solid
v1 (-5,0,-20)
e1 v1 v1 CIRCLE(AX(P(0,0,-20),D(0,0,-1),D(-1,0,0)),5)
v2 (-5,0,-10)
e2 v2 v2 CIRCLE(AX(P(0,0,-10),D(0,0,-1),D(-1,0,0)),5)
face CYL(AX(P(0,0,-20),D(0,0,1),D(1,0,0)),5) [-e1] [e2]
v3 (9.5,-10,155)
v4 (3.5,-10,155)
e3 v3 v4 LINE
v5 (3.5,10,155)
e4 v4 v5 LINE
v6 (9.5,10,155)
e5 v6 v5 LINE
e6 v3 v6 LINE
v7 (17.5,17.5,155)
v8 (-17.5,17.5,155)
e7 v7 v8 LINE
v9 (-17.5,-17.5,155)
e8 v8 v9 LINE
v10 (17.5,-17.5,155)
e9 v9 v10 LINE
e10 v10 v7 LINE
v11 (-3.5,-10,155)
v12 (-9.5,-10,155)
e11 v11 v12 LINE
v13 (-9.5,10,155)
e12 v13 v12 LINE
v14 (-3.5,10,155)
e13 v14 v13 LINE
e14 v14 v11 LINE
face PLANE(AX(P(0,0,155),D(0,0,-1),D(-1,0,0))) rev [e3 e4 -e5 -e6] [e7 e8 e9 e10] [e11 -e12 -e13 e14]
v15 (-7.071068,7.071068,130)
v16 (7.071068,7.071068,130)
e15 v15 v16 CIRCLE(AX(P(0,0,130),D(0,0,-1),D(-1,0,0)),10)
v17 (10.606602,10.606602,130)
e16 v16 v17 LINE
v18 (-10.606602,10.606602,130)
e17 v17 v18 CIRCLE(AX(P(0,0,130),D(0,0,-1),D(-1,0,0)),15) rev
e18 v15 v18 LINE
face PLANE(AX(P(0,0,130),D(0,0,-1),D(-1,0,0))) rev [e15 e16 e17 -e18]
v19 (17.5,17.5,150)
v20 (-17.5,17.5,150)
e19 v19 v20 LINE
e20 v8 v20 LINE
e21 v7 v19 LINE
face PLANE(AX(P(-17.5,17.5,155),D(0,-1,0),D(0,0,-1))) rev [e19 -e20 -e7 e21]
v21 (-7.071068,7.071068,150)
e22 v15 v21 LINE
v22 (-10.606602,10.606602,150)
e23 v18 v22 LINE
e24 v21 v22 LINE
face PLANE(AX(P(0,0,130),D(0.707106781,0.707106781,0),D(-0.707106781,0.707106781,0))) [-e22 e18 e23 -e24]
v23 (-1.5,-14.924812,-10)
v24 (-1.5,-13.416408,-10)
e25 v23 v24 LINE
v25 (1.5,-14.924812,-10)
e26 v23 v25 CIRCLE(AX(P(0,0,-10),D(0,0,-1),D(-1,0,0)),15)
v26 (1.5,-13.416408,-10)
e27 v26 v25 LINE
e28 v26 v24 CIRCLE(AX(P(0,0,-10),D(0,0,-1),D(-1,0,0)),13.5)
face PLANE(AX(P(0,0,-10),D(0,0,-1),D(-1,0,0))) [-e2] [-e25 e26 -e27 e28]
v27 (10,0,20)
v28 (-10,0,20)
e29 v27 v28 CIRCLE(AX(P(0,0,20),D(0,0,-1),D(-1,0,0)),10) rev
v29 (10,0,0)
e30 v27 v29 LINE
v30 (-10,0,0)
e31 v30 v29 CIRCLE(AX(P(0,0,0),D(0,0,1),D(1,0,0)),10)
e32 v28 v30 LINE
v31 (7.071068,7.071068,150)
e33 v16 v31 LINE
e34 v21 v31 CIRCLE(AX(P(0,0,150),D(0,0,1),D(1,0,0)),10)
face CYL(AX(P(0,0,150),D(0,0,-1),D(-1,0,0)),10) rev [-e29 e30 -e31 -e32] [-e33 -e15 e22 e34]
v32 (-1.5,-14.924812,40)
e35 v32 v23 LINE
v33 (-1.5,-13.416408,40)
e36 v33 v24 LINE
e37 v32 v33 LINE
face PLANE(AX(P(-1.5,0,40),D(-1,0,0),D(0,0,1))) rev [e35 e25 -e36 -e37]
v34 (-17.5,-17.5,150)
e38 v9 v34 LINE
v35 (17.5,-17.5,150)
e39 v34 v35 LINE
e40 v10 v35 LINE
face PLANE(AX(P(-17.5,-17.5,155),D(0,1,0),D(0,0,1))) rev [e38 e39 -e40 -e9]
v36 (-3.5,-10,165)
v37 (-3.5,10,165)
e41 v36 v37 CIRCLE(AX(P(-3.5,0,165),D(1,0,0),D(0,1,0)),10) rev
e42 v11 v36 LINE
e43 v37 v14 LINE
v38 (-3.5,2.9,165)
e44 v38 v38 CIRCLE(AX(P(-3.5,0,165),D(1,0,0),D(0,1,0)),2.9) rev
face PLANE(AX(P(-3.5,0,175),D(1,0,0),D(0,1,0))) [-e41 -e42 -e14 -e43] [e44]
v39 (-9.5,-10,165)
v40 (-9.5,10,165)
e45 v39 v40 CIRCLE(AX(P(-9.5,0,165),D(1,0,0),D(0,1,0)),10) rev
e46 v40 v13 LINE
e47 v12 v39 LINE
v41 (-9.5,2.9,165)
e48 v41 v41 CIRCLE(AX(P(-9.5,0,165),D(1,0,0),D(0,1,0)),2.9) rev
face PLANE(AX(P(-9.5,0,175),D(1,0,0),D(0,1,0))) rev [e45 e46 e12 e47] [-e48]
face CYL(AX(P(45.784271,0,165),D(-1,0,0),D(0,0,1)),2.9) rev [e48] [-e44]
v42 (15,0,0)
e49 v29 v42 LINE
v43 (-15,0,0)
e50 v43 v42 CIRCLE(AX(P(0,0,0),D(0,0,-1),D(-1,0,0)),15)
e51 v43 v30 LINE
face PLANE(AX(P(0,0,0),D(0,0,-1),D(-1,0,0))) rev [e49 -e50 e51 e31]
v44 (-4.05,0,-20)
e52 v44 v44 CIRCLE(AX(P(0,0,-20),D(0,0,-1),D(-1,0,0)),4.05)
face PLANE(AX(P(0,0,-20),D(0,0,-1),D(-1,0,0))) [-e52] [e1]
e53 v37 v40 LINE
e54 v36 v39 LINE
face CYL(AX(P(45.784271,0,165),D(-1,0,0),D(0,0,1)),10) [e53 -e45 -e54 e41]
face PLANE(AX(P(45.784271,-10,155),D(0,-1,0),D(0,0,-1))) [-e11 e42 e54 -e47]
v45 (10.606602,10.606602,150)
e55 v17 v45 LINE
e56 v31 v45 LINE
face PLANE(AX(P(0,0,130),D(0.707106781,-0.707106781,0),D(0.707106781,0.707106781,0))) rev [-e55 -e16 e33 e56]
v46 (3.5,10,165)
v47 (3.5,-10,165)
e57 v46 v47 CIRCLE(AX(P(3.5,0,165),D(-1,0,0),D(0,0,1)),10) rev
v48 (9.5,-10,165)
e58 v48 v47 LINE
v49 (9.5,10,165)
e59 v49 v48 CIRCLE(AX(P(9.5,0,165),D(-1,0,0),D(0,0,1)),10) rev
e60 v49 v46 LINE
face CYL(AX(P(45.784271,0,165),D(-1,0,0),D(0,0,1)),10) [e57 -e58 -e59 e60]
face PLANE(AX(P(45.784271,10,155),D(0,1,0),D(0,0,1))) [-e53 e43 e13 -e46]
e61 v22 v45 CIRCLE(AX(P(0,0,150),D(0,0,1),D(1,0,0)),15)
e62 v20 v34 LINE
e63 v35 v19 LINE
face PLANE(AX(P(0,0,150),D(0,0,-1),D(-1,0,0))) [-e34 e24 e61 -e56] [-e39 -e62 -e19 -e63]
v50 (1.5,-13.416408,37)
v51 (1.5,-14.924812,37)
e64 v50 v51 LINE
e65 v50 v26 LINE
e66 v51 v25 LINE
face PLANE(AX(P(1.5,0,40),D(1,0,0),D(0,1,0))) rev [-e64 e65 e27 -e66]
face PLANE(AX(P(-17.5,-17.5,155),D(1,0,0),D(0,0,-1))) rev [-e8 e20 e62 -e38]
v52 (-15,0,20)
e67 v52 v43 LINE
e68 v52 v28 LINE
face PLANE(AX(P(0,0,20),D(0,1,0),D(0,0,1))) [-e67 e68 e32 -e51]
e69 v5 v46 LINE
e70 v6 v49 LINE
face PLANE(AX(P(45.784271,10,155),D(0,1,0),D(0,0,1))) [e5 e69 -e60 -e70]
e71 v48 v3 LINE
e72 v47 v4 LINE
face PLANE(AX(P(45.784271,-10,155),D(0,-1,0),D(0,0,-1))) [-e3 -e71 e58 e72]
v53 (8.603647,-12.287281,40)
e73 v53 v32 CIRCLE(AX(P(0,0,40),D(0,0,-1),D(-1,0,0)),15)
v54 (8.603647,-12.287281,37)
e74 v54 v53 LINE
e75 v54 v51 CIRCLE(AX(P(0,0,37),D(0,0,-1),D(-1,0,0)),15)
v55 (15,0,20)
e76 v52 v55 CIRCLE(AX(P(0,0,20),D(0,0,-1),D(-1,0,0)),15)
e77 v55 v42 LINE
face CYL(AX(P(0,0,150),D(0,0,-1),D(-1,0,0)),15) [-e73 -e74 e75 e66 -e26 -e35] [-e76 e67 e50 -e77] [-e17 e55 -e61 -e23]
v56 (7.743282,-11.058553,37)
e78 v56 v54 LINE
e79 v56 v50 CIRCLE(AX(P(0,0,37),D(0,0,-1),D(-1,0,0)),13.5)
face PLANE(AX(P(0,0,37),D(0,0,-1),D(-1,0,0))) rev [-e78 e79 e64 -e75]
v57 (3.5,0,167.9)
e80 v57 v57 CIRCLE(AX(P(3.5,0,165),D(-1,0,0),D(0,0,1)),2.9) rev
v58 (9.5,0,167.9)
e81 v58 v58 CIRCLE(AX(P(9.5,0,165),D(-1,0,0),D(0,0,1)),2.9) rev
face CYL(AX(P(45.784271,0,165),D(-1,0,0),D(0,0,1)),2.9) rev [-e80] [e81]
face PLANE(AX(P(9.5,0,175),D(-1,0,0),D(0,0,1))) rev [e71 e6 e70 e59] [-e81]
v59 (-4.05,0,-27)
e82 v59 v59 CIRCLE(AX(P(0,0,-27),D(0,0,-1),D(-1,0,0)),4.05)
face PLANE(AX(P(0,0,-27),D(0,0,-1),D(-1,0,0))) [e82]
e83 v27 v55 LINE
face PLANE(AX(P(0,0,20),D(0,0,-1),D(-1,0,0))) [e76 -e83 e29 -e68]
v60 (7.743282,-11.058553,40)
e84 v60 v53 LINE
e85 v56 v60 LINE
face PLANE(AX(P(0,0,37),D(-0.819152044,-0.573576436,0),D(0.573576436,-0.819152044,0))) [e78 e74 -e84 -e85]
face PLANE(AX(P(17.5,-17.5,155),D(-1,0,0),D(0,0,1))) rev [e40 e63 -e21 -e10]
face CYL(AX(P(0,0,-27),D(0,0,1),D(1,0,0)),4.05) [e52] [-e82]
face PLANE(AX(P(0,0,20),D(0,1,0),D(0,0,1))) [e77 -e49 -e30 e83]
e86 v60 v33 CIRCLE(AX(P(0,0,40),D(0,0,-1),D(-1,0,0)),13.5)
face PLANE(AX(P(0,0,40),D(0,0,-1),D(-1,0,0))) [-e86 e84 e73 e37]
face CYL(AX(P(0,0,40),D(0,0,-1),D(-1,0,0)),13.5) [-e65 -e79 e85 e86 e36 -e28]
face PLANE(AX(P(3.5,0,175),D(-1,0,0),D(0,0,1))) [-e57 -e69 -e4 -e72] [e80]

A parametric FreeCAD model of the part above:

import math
import FreeCAD as App
import Part
import Sketcher

V = App.Vector
Q = App.Units.Quantity


def add_polygon(sketch, points):
    """Adds a closed chain of lines whose ends are joined by coincident constraints."""
    first, n = sketch.GeometryCount, len(points)
    for a, b in zip(points, points[1:] + points[:1]):
        sketch.addGeometry(Part.LineSegment(App.Vector(*a, 0), App.Vector(*b, 0)), False)
    for i in range(n):
        sketch.addConstraint(Sketcher.Constraint("Coincident", first + i, 2, first + (i + 1) % n, 1))

doc = App.newDocument("Part")
body = doc.addObject("PartDesign::Body", "Body")

# Sketch on XY plane
sketch1 = body.newObject("Sketcher::SketchObject", "Sketch")
sketch1.AttachmentSupport = (doc.getObject("XY_Plane"), [""])
sketch1.MapMode = "FlatFace"
sketch1.addGeometry([
    Part.Circle(V(0, 0, 0), V(0, 0, 1), 15),
    Part.Circle(V(0, 0, 0), V(0, 0, 1), 10),
], False)
sketch1.addConstraint([
    Sketcher.Constraint("Coincident", 0, 3, -1, 1),
    Sketcher.Constraint("Coincident", 1, 3, -1, 1),
    Sketcher.Constraint("Diameter", 0, 30.0),
    Sketcher.Constraint("Diameter", 1, 20.0),
])
pad1 = body.newObject("PartDesign::Pad", "Pad")
pad1.Profile = sketch1
pad1.Length = 150

# Sketch on XY plane
sketch2 = body.newObject("Sketcher::SketchObject", "Sketch001")
sketch2.AttachmentSupport = (doc.getObject("XY_Plane"), [""])
sketch2.MapMode = "FlatFace"
sketch2.AttachmentOffset = App.Placement(V(0, 0, 150), App.Rotation())
add_polygon(sketch2, [(-18, 18), (-18, -18), (18, -18), (18, 18)])  # lines 0-3
sketch2.addConstraint([
    Sketcher.Constraint("Vertical", 0),
    Sketcher.Constraint("Horizontal", 1),
    Sketcher.Constraint("Vertical", 2),
    Sketcher.Constraint("Horizontal", 3),
    Sketcher.Constraint("Symmetric", 0, 2, 2, 2, -1, 1),
    Sketcher.Constraint("Equal", 3, 0),
    Sketcher.Constraint("DistanceX", 1, 1, 1, 2, 35.0),
])
pad2 = body.newObject("PartDesign::Pad", "Pad001")
pad2.Profile = sketch2
pad2.Length = 5

# Sketch on XY plane
sketch3 = body.newObject("Sketcher::SketchObject", "Sketch002")
sketch3.AttachmentSupport = (doc.getObject("XY_Plane"), [""])
sketch3.MapMode = "FlatFace"
sketch3.addGeometry([
    Part.LineSegment(V(-10, 0, 0), V(-15, 0, 0)),
    Part.ArcOfCircle(Part.Circle(V(0, 0, 0), V(0, 0, 1), 15), math.radians(0), math.radians(180)),
    Part.LineSegment(V(15, 0, 0), V(10, 0, 0)),
    Part.ArcOfCircle(Part.Circle(V(0, 0, 0), V(0, 0, 1), 10), math.radians(0), math.radians(180)),
], False)
sketch3.addConstraint([
    Sketcher.Constraint("Coincident", 0, 2, 1, 2),
    Sketcher.Constraint("Coincident", 1, 1, 2, 1),
    Sketcher.Constraint("Coincident", 2, 2, 3, 1),
    Sketcher.Constraint("Coincident", 3, 2, 0, 1),
    Sketcher.Constraint("Horizontal", 0),
    Sketcher.Constraint("Horizontal", 2),
    Sketcher.Constraint("Coincident", 1, 3, -1, 1),
    Sketcher.Constraint("Coincident", 3, 3, -1, 1),
    Sketcher.Constraint("PointOnObject", 0, 2, -1),
    Sketcher.Constraint("PointOnObject", 1, 1, -1),
    Sketcher.Constraint("Radius", 1, 15.0),
    Sketcher.Constraint("Radius", 3, 10.0),
])
pocket1 = body.newObject("PartDesign::Pocket", "Pocket")
pocket1.Profile = sketch3
pocket1.Length = 20
pocket1.Reversed = True

# Sketch on XY plane
sketch4 = body.newObject("Sketcher::SketchObject", "Sketch003")
sketch4.AttachmentSupport = (doc.getObject("XY_Plane"), [""])
sketch4.MapMode = "FlatFace"
sketch4.AttachmentOffset = App.Placement(V(0, 0, -10), App.Rotation())
sketch4.addGeometry(Part.Circle(V(0, 0, 0), V(0, 0, 1), 15), False)
sketch4.addConstraint([
    Sketcher.Constraint("Coincident", 0, 3, -1, 1),
    Sketcher.Constraint("Diameter", 0, 30.0),
])
pad3 = body.newObject("PartDesign::Pad", "Pad002")
pad3.Profile = sketch4
pad3.Length = 10

# Sketch on XY plane
sketch5 = body.newObject("Sketcher::SketchObject", "Sketch004")
sketch5.AttachmentSupport = (doc.getObject("XY_Plane"), [""])
sketch5.MapMode = "FlatFace"
sketch5.AttachmentOffset = App.Placement(V(0, 0, -10), App.Rotation())
sketch5.addGeometry(Part.Circle(V(0, 0, 0), V(0, 0, 1), 5), False)
sketch5.addConstraint([
    Sketcher.Constraint("Coincident", 0, 3, -1, 1),
    Sketcher.Constraint("Diameter", 0, 10.0),
])
pad4 = body.newObject("PartDesign::Pad", "Pad003")
pad4.Profile = sketch5
pad4.Length = 10
pad4.Reversed = True

# Sketch on XY plane
sketch6 = body.newObject("Sketcher::SketchObject", "Sketch005")
sketch6.AttachmentSupport = (doc.getObject("XY_Plane"), [""])
sketch6.MapMode = "FlatFace"
sketch6.AttachmentOffset = App.Placement(V(0, 0, 130), App.Rotation())
sketch6.addGeometry([
    Part.LineSegment(V(11, 11, 0), V(7, 7, 0)),
    Part.ArcOfCircle(Part.Circle(V(0, 0, 0), V(0, 0, 1), 10), math.radians(45), math.radians(135)),
    Part.LineSegment(V(-7, 7, 0), V(-11, 11, 0)),
    Part.ArcOfCircle(Part.Circle(V(0, 0, 0), V(0, 0, 1), 15), math.radians(45), math.radians(135)),
], False)
sketch6.addConstraint([
    Sketcher.Constraint("Coincident", 0, 2, 1, 1),
    Sketcher.Constraint("Coincident", 1, 2, 2, 1),
    Sketcher.Constraint("Coincident", 2, 2, 3, 2),
    Sketcher.Constraint("Coincident", 3, 1, 0, 1),
    Sketcher.Constraint("Coincident", 1, 3, -1, 1),
    Sketcher.Constraint("Coincident", 3, 3, -1, 1),
    Sketcher.Constraint("Perpendicular", 0, 2),
    Sketcher.Constraint("Horizontal", 0, 2, 1, 2),
    Sketcher.Constraint("Horizontal", 2, 2, 3, 1),
    Sketcher.Constraint("Radius", 1, 10.0),
    Sketcher.Constraint("Radius", 3, 15.0),
    Sketcher.Constraint("DistanceX", 2, 2, -1, 1, 10.606602),
])
pocket2 = body.newObject("PartDesign::Pocket", "Pocket001")
pocket2.Profile = sketch6
pocket2.Length = 20
pocket2.Reversed = True

# Sketch on XY plane
sketch7 = body.newObject("Sketcher::SketchObject", "Sketch006")
sketch7.AttachmentSupport = (doc.getObject("XY_Plane"), [""])
sketch7.MapMode = "FlatFace"
sketch7.AttachmentOffset = App.Placement(V(0, 0, -20), App.Rotation())
sketch7.addGeometry(Part.Circle(V(0, 0, 0), V(0, 0, 1), 4), False)
sketch7.addConstraint([
    Sketcher.Constraint("Coincident", 0, 3, -1, 1),
    Sketcher.Constraint("Diameter", 0, 8.1),
])
pad5 = body.newObject("PartDesign::Pad", "Pad004")
pad5.Profile = sketch7
pad5.Length = 7
pad5.Reversed = True

# Sketch on YZ plane
sketch8 = body.newObject("Sketcher::SketchObject", "Sketch007")
sketch8.AttachmentSupport = (doc.getObject("YZ_Plane"), [""])
sketch8.MapMode = "FlatFace"
sketch8.AttachmentOffset = App.Placement(V(0, 0, -17.5), App.Rotation())
sketch8.addGeometry([
    Part.LineSegment(V(10, 165, 0), V(10, 155, 0)),  # 0
    Part.LineSegment(V(10, 155, 0), V(-10, 155, 0)),  # 1
    Part.LineSegment(V(-10, 155, 0), V(-10, 165, 0)),  # 2
    Part.ArcOfCircle(Part.Circle(V(0, 165, 0), V(0, 0, 1), 10), math.radians(0), math.radians(180)),  # 3
    Part.Circle(V(0, 165, 0), V(0, 0, 1), 2.9),  # 4
], False)
sketch8.addConstraint([
    Sketcher.Constraint("Coincident", 0, 2, 1, 1),
    Sketcher.Constraint("Coincident", 1, 2, 2, 1),
    Sketcher.Constraint("Tangent", 2, 2, 3, 2),
    Sketcher.Constraint("Tangent", 3, 1, 0, 1),
    Sketcher.Constraint("Vertical", 0),
    Sketcher.Constraint("Horizontal", 1),
    Sketcher.Constraint("Vertical", 2),
    Sketcher.Constraint("Coincident", 4, 3, 3, 3),
    Sketcher.Constraint("PointOnObject", 3, 3, -2),
    Sketcher.Constraint("Radius", 3, 10.0),
    Sketcher.Constraint("Diameter", 4, 5.8),
    Sketcher.Constraint("DistanceY", 0, 2, 0, 1, 10.0),
    Sketcher.Constraint("DistanceY", -1, 1, 3, 3, 165.0),
])
pad6 = body.newObject("PartDesign::Pad", "Pad005")
pad6.Profile = sketch8
pad6.Length = 35

# Sketch on XY plane
sketch9 = body.newObject("Sketcher::SketchObject", "Sketch008")
sketch9.AttachmentSupport = (doc.getObject("XY_Plane"), [""])
sketch9.MapMode = "FlatFace"
sketch9.AttachmentOffset = App.Placement(V(0, 0, 155), App.Rotation())
add_polygon(sketch9, [(-18, -18), (-10, -18), (-10, 18), (-18, 18)])  # lines 0-3
add_polygon(sketch9, [(-4, 18), (-4, -18), (4, -18), (4, 18)])  # lines 4-7
add_polygon(sketch9, [(10, 18), (10, -18), (18, -18), (18, 18)])  # lines 8-11
sketch9.addConstraint([
    Sketcher.Constraint("Horizontal", 0),
    Sketcher.Constraint("Vertical", 1),
    Sketcher.Constraint("Horizontal", 2),
    Sketcher.Constraint("Vertical", 3),
    Sketcher.Constraint("Vertical", 4),
    Sketcher.Constraint("Horizontal", 5),
    Sketcher.Constraint("Vertical", 6),
    Sketcher.Constraint("Horizontal", 7),
    Sketcher.Constraint("Vertical", 8),
    Sketcher.Constraint("Horizontal", 9),
    Sketcher.Constraint("Vertical", 10),
    Sketcher.Constraint("Horizontal", 11),
    Sketcher.Constraint("Symmetric", 4, 2, 6, 2, -1, 1),
    Sketcher.Constraint("Symmetric", 1, 2, 8, 2, -1, 1),
    Sketcher.Constraint("Symmetric", 3, 2, 10, 2, -1, 1),
    Sketcher.Constraint("Horizontal", 3, 2, 4, 2),
    Sketcher.Constraint("Horizontal", 2, 2, 6, 2),
    Sketcher.Constraint("DistanceX", 0, 1, 0, 2, 8.0),
    Sketcher.Constraint("DistanceX", 5, 1, 5, 2, 7.0),
    Sketcher.Constraint("DistanceY", 1, 1, 1, 2, 35.0),
    Sketcher.Constraint("DistanceX", 0, 2, 4, 2, 6.0),
])
pocket3 = body.newObject("PartDesign::Pocket", "Pocket002")
pocket3.Profile = sketch9
pocket3.Type = "ThroughAll"
pocket3.Reversed = True

# Sketch on XY plane
sketch10 = body.newObject("Sketcher::SketchObject", "Sketch009")
sketch10.AttachmentSupport = (doc.getObject("XY_Plane"), [""])
sketch10.MapMode = "FlatFace"
sketch10.AttachmentOffset = App.Placement(V(0, 0, -10), App.Rotation())
sketch10.addGeometry([
    Part.ArcOfCircle(Part.Circle(V(0, 0, 0), V(0, 0, 1), 13.5), math.radians(-96.38), math.radians(-90)),  # 0
    Part.ArcOfCircle(Part.Circle(V(0, 0, 0), V(0, 0, 1), 13.5), math.radians(-90), math.radians(-83.62)),  # 1
    Part.LineSegment(V(1.5, -13.4, 0), V(1.5, -14.9, 0)),  # 2
    Part.ArcOfCircle(Part.Circle(V(0, 0, 0), V(0, 0, 1), 15), math.radians(-90), math.radians(-84.26)),  # 3
    Part.ArcOfCircle(Part.Circle(V(0, 0, 0), V(0, 0, 1), 15), math.radians(-95.74), math.radians(-90)),  # 4
    Part.LineSegment(V(-1.5, -14.9, 0), V(-1.5, -13.4, 0)),  # 5
], False)
sketch10.addConstraint([
    Sketcher.Constraint("Tangent", 0, 2, 1, 1),
    Sketcher.Constraint("Coincident", 1, 2, 2, 1),
    Sketcher.Constraint("Coincident", 2, 2, 3, 2),
    Sketcher.Constraint("Tangent", 3, 1, 4, 2),
    Sketcher.Constraint("Coincident", 4, 1, 5, 1),
    Sketcher.Constraint("Coincident", 5, 2, 0, 1),
    Sketcher.Constraint("Vertical", 2),
    Sketcher.Constraint("Vertical", 5),
    Sketcher.Constraint("Coincident", 0, 3, -1, 1),
    Sketcher.Constraint("Coincident", 3, 3, -1, 1),
    Sketcher.Constraint("Equal", 0, 1),
    Sketcher.Constraint("Equal", 3, 4),
    Sketcher.Constraint("PointOnObject", 0, 2, -2),
    Sketcher.Constraint("PointOnObject", 3, 1, -2),
    Sketcher.Constraint("Horizontal", 2, 2, 4, 1),
    Sketcher.Constraint("Radius", 3, 15.0),
    Sketcher.Constraint("Radius", 0, 13.5),
    Sketcher.Constraint("DistanceX", 4, 1, 2, 2, 3.0),
])
pocket4 = body.newObject("PartDesign::Pocket", "Pocket003")
pocket4.Profile = sketch10
pocket4.Length = 50
pocket4.Reversed = True

# Sketch on XY plane
sketch11 = body.newObject("Sketcher::SketchObject", "Sketch010")
sketch11.AttachmentSupport = (doc.getObject("XY_Plane"), [""])
sketch11.MapMode = "FlatFace"
sketch11.AttachmentOffset = App.Placement(V(0, 0, 37), App.Rotation())
sketch11.addGeometry([
    Part.LineSegment(V(1.5, -14.9, 0), V(1.5, -13.4, 0)),
    Part.ArcOfCircle(Part.Circle(V(0, 0, 0), V(0, 0, 1), 13.5), math.radians(-84), math.radians(-55)),
    Part.LineSegment(V(7.7, -11.1, 0), V(8.6, -12.3, 0)),
    Part.ArcOfCircle(Part.Circle(V(0, 0, 0), V(0, 0, 1), 15), math.radians(-84), math.radians(-55)),
], False)
sketch11.addConstraint([
    Sketcher.Constraint("Coincident", 0, 2, 1, 1),
    Sketcher.Constraint("Coincident", 1, 2, 2, 1),
    Sketcher.Constraint("Coincident", 2, 2, 3, 2),
    Sketcher.Constraint("Coincident", 3, 1, 0, 1),
    Sketcher.Constraint("Vertical", 0),
    Sketcher.Constraint("Coincident", 1, 3, -1, 1),
    Sketcher.Constraint("Coincident", 3, 3, -1, 1),
    Sketcher.Constraint("Radius", 3, 15.0),
    Sketcher.Constraint("Radius", 1, 13.5),
    Sketcher.Constraint("Angle", 2, Q("-55 deg")),
    Sketcher.Constraint("DistanceX", -1, 1, 0, 2, 1.5),
    Sketcher.Constraint("DistanceX", -1, 1, 1, 2, 7.743282),
])
pocket5 = body.newObject("PartDesign::Pocket", "Pocket004")
pocket5.Profile = sketch11
pocket5.Length = 3
pocket5.Reversed = True

doc.recompute()
